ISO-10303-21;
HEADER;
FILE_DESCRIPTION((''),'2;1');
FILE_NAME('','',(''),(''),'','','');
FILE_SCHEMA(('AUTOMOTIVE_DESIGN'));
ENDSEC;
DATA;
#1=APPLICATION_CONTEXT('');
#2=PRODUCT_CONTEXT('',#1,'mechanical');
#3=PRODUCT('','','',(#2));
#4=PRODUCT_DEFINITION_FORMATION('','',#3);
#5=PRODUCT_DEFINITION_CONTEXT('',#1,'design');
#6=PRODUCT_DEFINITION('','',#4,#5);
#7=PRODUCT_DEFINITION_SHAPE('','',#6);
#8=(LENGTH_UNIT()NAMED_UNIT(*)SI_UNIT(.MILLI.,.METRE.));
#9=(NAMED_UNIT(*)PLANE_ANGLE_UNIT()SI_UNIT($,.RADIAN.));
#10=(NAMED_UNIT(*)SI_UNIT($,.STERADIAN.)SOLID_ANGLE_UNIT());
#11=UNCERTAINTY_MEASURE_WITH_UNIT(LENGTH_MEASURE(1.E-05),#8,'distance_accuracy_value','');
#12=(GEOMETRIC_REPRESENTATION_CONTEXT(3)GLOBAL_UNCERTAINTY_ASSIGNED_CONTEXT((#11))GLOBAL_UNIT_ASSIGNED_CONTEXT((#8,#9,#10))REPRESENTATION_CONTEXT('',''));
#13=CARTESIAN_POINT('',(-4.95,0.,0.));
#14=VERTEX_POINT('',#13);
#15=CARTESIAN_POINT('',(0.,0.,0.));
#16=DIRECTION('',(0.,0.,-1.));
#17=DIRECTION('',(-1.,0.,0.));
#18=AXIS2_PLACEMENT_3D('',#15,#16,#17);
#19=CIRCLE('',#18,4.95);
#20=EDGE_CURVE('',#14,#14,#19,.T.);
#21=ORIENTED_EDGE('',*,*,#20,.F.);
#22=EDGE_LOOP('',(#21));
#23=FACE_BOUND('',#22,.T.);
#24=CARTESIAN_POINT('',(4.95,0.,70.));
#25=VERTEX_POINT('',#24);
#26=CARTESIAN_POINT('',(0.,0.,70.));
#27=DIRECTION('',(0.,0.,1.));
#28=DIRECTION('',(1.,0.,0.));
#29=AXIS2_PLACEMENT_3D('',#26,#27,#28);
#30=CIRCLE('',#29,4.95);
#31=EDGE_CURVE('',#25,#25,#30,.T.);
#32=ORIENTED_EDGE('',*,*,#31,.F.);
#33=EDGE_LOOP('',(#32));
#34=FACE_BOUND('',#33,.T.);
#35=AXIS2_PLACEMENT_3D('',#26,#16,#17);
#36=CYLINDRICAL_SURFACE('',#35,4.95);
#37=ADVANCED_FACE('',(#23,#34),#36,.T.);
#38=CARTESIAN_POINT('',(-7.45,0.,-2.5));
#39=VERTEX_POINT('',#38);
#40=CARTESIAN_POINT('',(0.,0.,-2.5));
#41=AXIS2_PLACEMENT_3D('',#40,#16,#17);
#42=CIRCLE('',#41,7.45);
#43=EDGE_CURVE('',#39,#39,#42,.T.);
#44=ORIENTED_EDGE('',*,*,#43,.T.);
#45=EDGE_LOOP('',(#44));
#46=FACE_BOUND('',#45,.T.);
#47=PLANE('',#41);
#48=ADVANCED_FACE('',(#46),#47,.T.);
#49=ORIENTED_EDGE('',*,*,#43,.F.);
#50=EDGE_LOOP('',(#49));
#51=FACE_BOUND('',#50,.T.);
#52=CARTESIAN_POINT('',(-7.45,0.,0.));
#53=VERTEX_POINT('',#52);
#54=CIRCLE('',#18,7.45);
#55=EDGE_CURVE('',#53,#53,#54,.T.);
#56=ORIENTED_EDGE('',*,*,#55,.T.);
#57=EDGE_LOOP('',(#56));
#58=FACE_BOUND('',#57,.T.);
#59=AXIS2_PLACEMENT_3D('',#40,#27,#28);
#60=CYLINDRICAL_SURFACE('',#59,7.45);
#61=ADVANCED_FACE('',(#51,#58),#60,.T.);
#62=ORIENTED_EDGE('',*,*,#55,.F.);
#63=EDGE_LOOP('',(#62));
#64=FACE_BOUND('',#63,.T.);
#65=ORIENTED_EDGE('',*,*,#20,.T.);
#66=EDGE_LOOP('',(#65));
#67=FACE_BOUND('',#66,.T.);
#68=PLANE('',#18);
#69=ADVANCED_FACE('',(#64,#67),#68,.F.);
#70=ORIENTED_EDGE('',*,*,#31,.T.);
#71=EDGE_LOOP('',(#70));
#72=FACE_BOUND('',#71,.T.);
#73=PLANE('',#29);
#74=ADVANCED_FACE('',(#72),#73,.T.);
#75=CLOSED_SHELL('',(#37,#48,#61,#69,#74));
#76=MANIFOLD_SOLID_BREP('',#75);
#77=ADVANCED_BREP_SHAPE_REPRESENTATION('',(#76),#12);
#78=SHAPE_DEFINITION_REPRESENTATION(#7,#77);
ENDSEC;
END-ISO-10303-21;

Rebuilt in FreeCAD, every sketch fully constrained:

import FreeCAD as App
import Part
import Sketcher
from FreeCAD import Vector
Q = App.Units.Quantity

doc = App.newDocument("Part")
body = doc.addObject("PartDesign::Body", "Body")

# Sketch on XY plane
sketch1 = doc.addObject("Sketcher::SketchObject", "Sketch")
body.addObject(sketch1)
sketch1.AttachmentSupport = (doc.XY_Plane, [""])
sketch1.MapMode = "FlatFace"
sketch1.addGeometry(Part.Circle(Vector(0, 0, 0), Vector(0, 0, 1), 5), False)
sketch1.addConstraint(Sketcher.Constraint("Coincident", 0, 3, -1, 1))
sketch1.addConstraint(Sketcher.Constraint("Diameter", 0, Q("9.9 mm")))
pad1 = doc.addObject("PartDesign::Pad", "Pad")
body.addObject(pad1)
pad1.Profile = sketch1
pad1.Length = 70

# Sketch on XY plane
sketch2 = doc.addObject("Sketcher::SketchObject", "Sketch001")
body.addObject(sketch2)
sketch2.AttachmentSupport = (doc.XY_Plane, [""])
sketch2.MapMode = "FlatFace"
sketch2.addGeometry(Part.Circle(Vector(0, 0, 0), Vector(0, 0, 1), 7), False)
sketch2.addConstraint(Sketcher.Constraint("Coincident", 0, 3, -1, 1))
sketch2.addConstraint(Sketcher.Constraint("Diameter", 0, Q("14.9 mm")))
pad2 = doc.addObject("PartDesign::Pad", "Pad001")
body.addObject(pad2)
pad2.Profile = sketch2
pad2.Length = 2.5
pad2.Reversed = True

doc.recompute()
